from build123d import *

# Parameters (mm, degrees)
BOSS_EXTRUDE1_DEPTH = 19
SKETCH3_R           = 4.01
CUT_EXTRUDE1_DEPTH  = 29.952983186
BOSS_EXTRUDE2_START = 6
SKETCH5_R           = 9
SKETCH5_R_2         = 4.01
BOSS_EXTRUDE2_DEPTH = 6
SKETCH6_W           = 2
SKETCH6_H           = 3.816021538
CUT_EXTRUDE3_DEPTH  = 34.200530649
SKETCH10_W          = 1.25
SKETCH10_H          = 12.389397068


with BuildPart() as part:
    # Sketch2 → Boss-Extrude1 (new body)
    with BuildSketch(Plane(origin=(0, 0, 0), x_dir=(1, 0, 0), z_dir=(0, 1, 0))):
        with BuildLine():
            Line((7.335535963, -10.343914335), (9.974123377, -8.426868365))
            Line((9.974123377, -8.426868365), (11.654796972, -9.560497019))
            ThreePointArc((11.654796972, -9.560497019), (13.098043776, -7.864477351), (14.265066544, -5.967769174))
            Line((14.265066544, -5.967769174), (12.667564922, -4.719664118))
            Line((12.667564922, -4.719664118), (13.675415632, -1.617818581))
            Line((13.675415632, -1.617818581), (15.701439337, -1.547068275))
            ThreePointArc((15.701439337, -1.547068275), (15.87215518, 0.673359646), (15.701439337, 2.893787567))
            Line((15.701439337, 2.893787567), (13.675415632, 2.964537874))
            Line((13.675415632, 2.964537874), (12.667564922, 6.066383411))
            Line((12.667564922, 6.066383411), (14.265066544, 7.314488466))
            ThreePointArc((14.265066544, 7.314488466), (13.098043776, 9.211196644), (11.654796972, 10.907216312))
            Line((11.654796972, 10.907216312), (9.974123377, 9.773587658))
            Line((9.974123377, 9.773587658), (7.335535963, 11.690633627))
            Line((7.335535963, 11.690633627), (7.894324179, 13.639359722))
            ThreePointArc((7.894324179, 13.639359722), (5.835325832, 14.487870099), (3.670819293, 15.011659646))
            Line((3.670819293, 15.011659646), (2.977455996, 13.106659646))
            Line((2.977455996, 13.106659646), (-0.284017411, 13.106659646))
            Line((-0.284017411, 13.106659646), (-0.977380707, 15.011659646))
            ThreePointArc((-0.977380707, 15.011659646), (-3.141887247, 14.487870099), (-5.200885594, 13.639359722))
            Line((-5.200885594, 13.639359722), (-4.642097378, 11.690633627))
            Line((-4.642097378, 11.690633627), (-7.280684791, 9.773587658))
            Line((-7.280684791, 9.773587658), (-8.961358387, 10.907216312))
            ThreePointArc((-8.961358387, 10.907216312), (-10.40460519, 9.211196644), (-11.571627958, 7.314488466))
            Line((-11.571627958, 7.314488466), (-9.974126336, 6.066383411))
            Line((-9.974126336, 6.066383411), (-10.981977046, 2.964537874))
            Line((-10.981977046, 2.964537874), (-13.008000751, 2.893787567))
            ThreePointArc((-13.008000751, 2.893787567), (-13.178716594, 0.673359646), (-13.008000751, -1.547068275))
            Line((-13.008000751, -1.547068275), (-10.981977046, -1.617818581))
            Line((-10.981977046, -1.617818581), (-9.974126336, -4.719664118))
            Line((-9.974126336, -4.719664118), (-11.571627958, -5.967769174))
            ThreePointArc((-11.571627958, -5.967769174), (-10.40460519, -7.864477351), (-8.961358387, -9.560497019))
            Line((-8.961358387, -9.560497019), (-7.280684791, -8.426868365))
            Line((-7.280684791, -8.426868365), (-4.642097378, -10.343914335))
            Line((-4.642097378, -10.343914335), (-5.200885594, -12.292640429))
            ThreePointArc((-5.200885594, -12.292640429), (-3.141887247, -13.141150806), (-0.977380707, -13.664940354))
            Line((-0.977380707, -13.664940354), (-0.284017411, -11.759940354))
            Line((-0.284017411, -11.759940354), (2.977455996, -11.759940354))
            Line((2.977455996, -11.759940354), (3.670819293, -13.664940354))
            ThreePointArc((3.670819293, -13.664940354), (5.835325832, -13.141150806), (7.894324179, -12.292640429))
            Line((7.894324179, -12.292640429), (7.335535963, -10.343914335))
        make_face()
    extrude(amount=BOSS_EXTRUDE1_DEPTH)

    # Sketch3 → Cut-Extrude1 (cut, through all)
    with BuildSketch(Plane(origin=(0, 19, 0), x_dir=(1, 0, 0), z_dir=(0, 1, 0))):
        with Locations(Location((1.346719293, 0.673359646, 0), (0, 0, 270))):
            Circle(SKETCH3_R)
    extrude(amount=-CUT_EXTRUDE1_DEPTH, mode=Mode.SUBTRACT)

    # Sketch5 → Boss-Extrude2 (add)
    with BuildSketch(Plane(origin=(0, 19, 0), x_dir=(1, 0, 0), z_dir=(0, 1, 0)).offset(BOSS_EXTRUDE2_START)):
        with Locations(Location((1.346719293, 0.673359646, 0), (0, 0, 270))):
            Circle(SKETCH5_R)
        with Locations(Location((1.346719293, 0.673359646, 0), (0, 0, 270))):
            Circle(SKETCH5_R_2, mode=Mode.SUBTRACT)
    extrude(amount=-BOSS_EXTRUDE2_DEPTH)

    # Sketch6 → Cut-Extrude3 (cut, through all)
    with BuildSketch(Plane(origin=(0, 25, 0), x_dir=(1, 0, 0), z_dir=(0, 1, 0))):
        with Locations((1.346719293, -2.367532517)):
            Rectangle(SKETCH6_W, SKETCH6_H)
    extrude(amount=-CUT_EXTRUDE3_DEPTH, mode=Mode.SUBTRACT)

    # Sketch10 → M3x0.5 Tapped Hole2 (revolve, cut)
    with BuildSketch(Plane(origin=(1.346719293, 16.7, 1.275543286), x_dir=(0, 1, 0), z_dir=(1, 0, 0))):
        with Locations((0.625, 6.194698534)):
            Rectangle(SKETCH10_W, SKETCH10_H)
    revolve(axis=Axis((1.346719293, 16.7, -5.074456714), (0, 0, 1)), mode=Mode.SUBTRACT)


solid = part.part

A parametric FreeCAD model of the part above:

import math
import FreeCAD as App
import Part
import Sketcher
from FreeCAD import Vector
Q = App.Units.Quantity


def add_polygon(sketch, points):
    """Adds a closed chain of lines whose ends are joined by coincident constraints."""
    first, n = sketch.GeometryCount, len(points)
    for a, b in zip(points, points[1:] + points[:1]):
        sketch.addGeometry(Part.LineSegment(App.Vector(*a, 0), App.Vector(*b, 0)), False)
    for i in range(n):
        sketch.addConstraint(Sketcher.Constraint("Coincident", first + i, 2, first + (i + 1) % n, 1))

doc = App.newDocument("Part")
body = doc.addObject("PartDesign::Body", "Body")

# Sketch on XZ plane
sketch1 = body.newObject("Sketcher::SketchObject", "Sketch")
sketch1.AttachmentSupport = (doc.getObject("XZ_Plane"), [""])
sketch1.MapMode = "FlatFace"
sketch1.addGeometry(Part.LineSegment(Vector(7.335536, 10.343914, 0), Vector(9.974123, 8.426868, 0)), False)
sketch1.addGeometry(Part.LineSegment(Vector(9.974123, 8.426868, 0), Vector(11.654797, 9.560497, 0)), False)
sketch1.addGeometry(Part.ArcOfCircle(Part.Circle(Vector(1.346719, -0.67336, 0), Vector(0, 0, 1), 14.525436), math.radians(27.207017), math.radians(44.792983)), False)
sketch1.addGeometry(Part.LineSegment(Vector(14.265067, 5.967769, 0), Vector(12.667565, 4.719664, 0)), False)
sketch1.addGeometry(Part.LineSegment(Vector(12.667565, 4.719664, 0), Vector(13.675416, 1.617819, 0)), False)
sketch1.addGeometry(Part.LineSegment(Vector(13.675416, 1.617819, 0), Vector(15.701439, 1.547068, 0)), False)
sketch1.addGeometry(Part.ArcOfCircle(Part.Circle(Vector(1.346719, -0.67336, 0), Vector(0, 0, 1), 14.525436), math.radians(-8.792983), math.radians(8.792983)), False)
sketch1.addGeometry(Part.LineSegment(Vector(15.701439, -2.893788, 0), Vector(13.675416, -2.964538, 0)), False)
sketch1.addGeometry(Part.LineSegment(Vector(13.675416, -2.964538, 0), Vector(12.667565, -6.066383, 0)), False)
sketch1.addGeometry(Part.LineSegment(Vector(12.667565, -6.066383, 0), Vector(14.265067, -7.314488, 0)), False)
sketch1.addGeometry(Part.ArcOfCircle(Part.Circle(Vector(1.346719, -0.67336, 0), Vector(0, 0, 1), 14.525436), math.radians(-44.792983), math.radians(-27.207017)), False)
sketch1.addGeometry(Part.LineSegment(Vector(11.654797, -10.907216, 0), Vector(9.974123, -9.773588, 0)), False)
sketch1.addGeometry(Part.LineSegment(Vector(9.974123, -9.773588, 0), Vector(7.335536, -11.690634, 0)), False)
sketch1.addGeometry(Part.LineSegment(Vector(7.335536, -11.690634, 0), Vector(7.894324, -13.63936, 0)), False)
sketch1.addGeometry(Part.ArcOfCircle(Part.Circle(Vector(1.346719, -0.67336, 0), Vector(0, 0, 1), 14.525436), math.radians(-80.792983), math.radians(-63.207017)), False)
sketch1.addGeometry(Part.LineSegment(Vector(3.670819, -15.01166, 0), Vector(2.977456, -13.10666, 0)), False)
sketch1.addGeometry(Part.LineSegment(Vector(2.977456, -13.10666, 0), Vector(-0.284017, -13.10666, 0)), False)
sketch1.addGeometry(Part.LineSegment(Vector(-0.284017, -13.10666, 0), Vector(-0.977381, -15.01166, 0)), False)
sketch1.addGeometry(Part.ArcOfCircle(Part.Circle(Vector(1.346719, -0.67336, 0), Vector(0, 0, 1), 14.525436), math.radians(-116.792983), math.radians(-99.207017)), False)
sketch1.addGeometry(Part.LineSegment(Vector(-5.200886, -13.63936, 0), Vector(-4.642097, -11.690634, 0)), False)
sketch1.addGeometry(Part.LineSegment(Vector(-4.642097, -11.690634, 0), Vector(-7.280685, -9.773588, 0)), False)
sketch1.addGeometry(Part.LineSegment(Vector(-7.280685, -9.773588, 0), Vector(-8.961358, -10.907216, 0)), False)
sketch1.addGeometry(Part.ArcOfCircle(Part.Circle(Vector(1.346719, -0.67336, 0), Vector(0, 0, 1), 14.525436), math.radians(-152.792983), math.radians(-135.207017)), False)
sketch1.addGeometry(Part.LineSegment(Vector(-11.571628, -7.314488, 0), Vector(-9.974126, -6.066383, 0)), False)
sketch1.addGeometry(Part.LineSegment(Vector(-9.974126, -6.066383, 0), Vector(-10.981977, -2.964538, 0)), False)
sketch1.addGeometry(Part.LineSegment(Vector(-10.981977, -2.964538, 0), Vector(-13.008001, -2.893788, 0)), False)
sketch1.addGeometry(Part.ArcOfCircle(Part.Circle(Vector(1.346719, -0.67336, 0), Vector(0, 0, 1), 14.525436), math.radians(171.207017), math.radians(188.792983)), False)
sketch1.addGeometry(Part.LineSegment(Vector(-13.008001, 1.547068, 0), Vector(-10.981977, 1.617819, 0)), False)
sketch1.addGeometry(Part.LineSegment(Vector(-10.981977, 1.617819, 0), Vector(-9.974126, 4.719664, 0)), False)
sketch1.addGeometry(Part.LineSegment(Vector(-9.974126, 4.719664, 0), Vector(-11.571628, 5.967769, 0)), False)
sketch1.addGeometry(Part.ArcOfCircle(Part.Circle(Vector(1.346719, -0.67336, 0), Vector(0, 0, 1), 14.525436), math.radians(135.207017), math.radians(152.792983)), False)
sketch1.addGeometry(Part.LineSegment(Vector(-8.961358, 9.560497, 0), Vector(-7.280685, 8.426868, 0)), False)
sketch1.addGeometry(Part.LineSegment(Vector(-7.280685, 8.426868, 0), Vector(-4.642097, 10.343914, 0)), False)
sketch1.addGeometry(Part.LineSegment(Vector(-4.642097, 10.343914, 0), Vector(-5.200886, 12.29264, 0)), False)
sketch1.addGeometry(Part.ArcOfCircle(Part.Circle(Vector(1.346719, -0.67336, 0), Vector(0, 0, 1), 14.525436), math.radians(99.207017), math.radians(116.792983)), False)
sketch1.addGeometry(Part.LineSegment(Vector(-0.977381, 13.66494, 0), Vector(-0.284017, 11.75994, 0)), False)
sketch1.addGeometry(Part.LineSegment(Vector(-0.284017, 11.75994, 0), Vector(2.977456, 11.75994, 0)), False)
sketch1.addGeometry(Part.LineSegment(Vector(2.977456, 11.75994, 0), Vector(3.670819, 13.66494, 0)), False)
sketch1.addGeometry(Part.ArcOfCircle(Part.Circle(Vector(1.346719, -0.67336, 0), Vector(0, 0, 1), 14.525436), math.radians(63.207017), math.radians(80.792983)), False)
sketch1.addGeometry(Part.LineSegment(Vector(7.894324, 12.29264, 0), Vector(7.335536, 10.343914, 0)), False)
sketch1.addConstraint(Sketcher.Constraint("Coincident", 0, 2, 1, 1))
sketch1.addConstraint(Sketcher.Constraint("Coincident", 1, 2, 2, 2))
sketch1.addConstraint(Sketcher.Constraint("Coincident", 2, 1, 3, 1))
sketch1.addConstraint(Sketcher.Constraint("Coincident", 3, 2, 4, 1))
sketch1.addConstraint(Sketcher.Constraint("Coincident", 4, 2, 5, 1))
sketch1.addConstraint(Sketcher.Constraint("Coincident", 5, 2, 6, 2))
sketch1.addConstraint(Sketcher.Constraint("Coincident", 6, 1, 7, 1))
sketch1.addConstraint(Sketcher.Constraint("Coincident", 7, 2, 8, 1))
sketch1.addConstraint(Sketcher.Constraint("Coincident", 8, 2, 9, 1))
sketch1.addConstraint(Sketcher.Constraint("Coincident", 9, 2, 10, 2))
sketch1.addConstraint(Sketcher.Constraint("Coincident", 10, 1, 11, 1))
sketch1.addConstraint(Sketcher.Constraint("Coincident", 11, 2, 12, 1))
sketch1.addConstraint(Sketcher.Constraint("Coincident", 12, 2, 13, 1))
sketch1.addConstraint(Sketcher.Constraint("Coincident", 13, 2, 14, 2))
sketch1.addConstraint(Sketcher.Constraint("Coincident", 14, 1, 15, 1))
sketch1.addConstraint(Sketcher.Constraint("Coincident", 15, 2, 16, 1))
sketch1.addConstraint(Sketcher.Constraint("Coincident", 16, 2, 17, 1))
sketch1.addConstraint(Sketcher.Constraint("Coincident", 17, 2, 18, 2))
sketch1.addConstraint(Sketcher.Constraint("Coincident", 18, 1, 19, 1))
sketch1.addConstraint(Sketcher.Constraint("Coincident", 19, 2, 20, 1))
sketch1.addConstraint(Sketcher.Constraint("Coincident", 20, 2, 21, 1))
sketch1.addConstraint(Sketcher.Constraint("Coincident", 21, 2, 22, 2))
sketch1.addConstraint(Sketcher.Constraint("Coincident", 22, 1, 23, 1))
sketch1.addConstraint(Sketcher.Constraint("Coincident", 23, 2, 24, 1))
sketch1.addConstraint(Sketcher.Constraint("Coincident", 24, 2, 25, 1))
sketch1.addConstraint(Sketcher.Constraint("Coincident", 25, 2, 26, 2))
sketch1.addConstraint(Sketcher.Constraint("Coincident", 26, 1, 27, 1))
sketch1.addConstraint(Sketcher.Constraint("Coincident", 27, 2, 28, 1))
sketch1.addConstraint(Sketcher.Constraint("Coincident", 28, 2, 29, 1))
sketch1.addConstraint(Sketcher.Constraint("Coincident", 29, 2, 30, 2))
sketch1.addConstraint(Sketcher.Constraint("Coincident", 30, 1, 31, 1))
sketch1.addConstraint(Sketcher.Constraint("Coincident", 31, 2, 32, 1))
sketch1.addConstraint(Sketcher.Constraint("Coincident", 32, 2, 33, 1))
sketch1.addConstraint(Sketcher.Constraint("Coincident", 33, 2, 34, 2))
sketch1.addConstraint(Sketcher.Constraint("Coincident", 34, 1, 35, 1))
sketch1.addConstraint(Sketcher.Constraint("Coincident", 35, 2, 36, 1))
sketch1.addConstraint(Sketcher.Constraint("Coincident", 36, 2, 37, 1))
sketch1.addConstraint(Sketcher.Constraint("Coincident", 37, 2, 38, 2))
sketch1.addConstraint(Sketcher.Constraint("Coincident", 38, 1, 39, 1))
sketch1.addConstraint(Sketcher.Constraint("Coincident", 39, 2, 0, 1))
sketch1.addConstraint(Sketcher.Constraint("Horizontal", 16))
sketch1.addConstraint(Sketcher.Constraint("Horizontal", 36))
sketch1.addConstraint(Sketcher.Constraint("Coincident", 6, 3, 2, 3))
sketch1.addConstraint(Sketcher.Constraint("Coincident", 10, 3, 2, 3))
sketch1.addConstraint(Sketcher.Constraint("Coincident", 14, 3, 2, 3))
sketch1.addConstraint(Sketcher.Constraint("Coincident", 18, 3, 2, 3))
sketch1.addConstraint(Sketcher.Constraint("Coincident", 22, 3, 2, 3))
sketch1.addConstraint(Sketcher.Constraint("Coincident", 26, 3, 2, 3))
sketch1.addConstraint(Sketcher.Constraint("Coincident", 30, 3, 2, 3))
sketch1.addConstraint(Sketcher.Constraint("Coincident", 34, 3, 2, 3))
sketch1.addConstraint(Sketcher.Constraint("Coincident", 38, 3, 2, 3))
sketch1.addConstraint(Sketcher.Constraint("Equal", 2, 6))
sketch1.addConstraint(Sketcher.Constraint("Equal", 6, 10))
sketch1.addConstraint(Sketcher.Constraint("Equal", 10, 14))
sketch1.addConstraint(Sketcher.Constraint("Equal", 14, 18))
sketch1.addConstraint(Sketcher.Constraint("Equal", 18, 22))
sketch1.addConstraint(Sketcher.Constraint("Equal", 22, 26))
sketch1.addConstraint(Sketcher.Constraint("Equal", 26, 30))
sketch1.addConstraint(Sketcher.Constraint("Equal", 30, 34))
sketch1.addConstraint(Sketcher.Constraint("Equal", 34, 38))
sketch1.addConstraint(Sketcher.Constraint("Parallel", 0, 20))
sketch1.addConstraint(Sketcher.Constraint("Parallel", 1, 21))
sketch1.addConstraint(Sketcher.Constraint("Parallel", 3, 23))
sketch1.addConstraint(Sketcher.Constraint("Parallel", 4, 24))
sketch1.addConstraint(Sketcher.Constraint("Parallel", 5, 25))
sketch1.addConstraint(Sketcher.Constraint("Parallel", 7, 27))
sketch1.addConstraint(Sketcher.Constraint("Parallel", 8, 28))
sketch1.addConstraint(Sketcher.Constraint("Parallel", 9, 29))
sketch1.addConstraint(Sketcher.Constraint("Parallel", 11, 31))
sketch1.addConstraint(Sketcher.Constraint("Parallel", 12, 32))
sketch1.addConstraint(Sketcher.Constraint("Parallel", 13, 33))
sketch1.addConstraint(Sketcher.Constraint("Parallel", 15, 35))
sketch1.addConstraint(Sketcher.Constraint("Parallel", 17, 37))
sketch1.addConstraint(Sketcher.Constraint("Parallel", 19, 39))
sketch1.addConstraint(Sketcher.Constraint("Horizontal", 14, 1, 17, 2))
sketch1.addConstraint(Sketcher.Constraint("Horizontal", 13, 2, 18, 1))
sketch1.addConstraint(Sketcher.Constraint("Horizontal", 12, 2, 19, 2))
sketch1.addConstraint(Sketcher.Constraint("Horizontal", 11, 2, 20, 2))
sketch1.addConstraint(Sketcher.Constraint("Horizontal", 10, 1, 21, 2))
sketch1.addConstraint(Sketcher.Constraint("Horizontal", 9, 2, 22, 1))
sketch1.addConstraint(Sketcher.Constraint("Horizontal", 8, 2, 23, 2))
sketch1.addConstraint(Sketcher.Constraint("Horizontal", 7, 2, 24, 2))
sketch1.addConstraint(Sketcher.Constraint("Horizontal", 6, 1, 25, 2))
sketch1.addConstraint(Sketcher.Constraint("Horizontal", 5, 2, 26, 1))
sketch1.addConstraint(Sketcher.Constraint("Horizontal", 4, 2, 27, 2))
sketch1.addConstraint(Sketcher.Constraint("Horizontal", 3, 2, 28, 2))
sketch1.addConstraint(Sketcher.Constraint("Horizontal", 1, 2, 30, 1))
sketch1.addConstraint(Sketcher.Constraint("Horizontal", 0, 2, 31, 2))
sketch1.addConstraint(Sketcher.Constraint("Horizontal", 34, 1, 37, 2))
sketch1.addConstraint(Sketcher.Constraint("Horizontal", 33, 2, 38, 1))
sketch1.addConstraint(Sketcher.Constraint("Vertical", 5, 2, 6, 1))
sketch1.addConstraint(Sketcher.Constraint("Vertical", 4, 2, 7, 2))
sketch1.addConstraint(Sketcher.Constraint("Vertical", 3, 2, 8, 2))
sketch1.addConstraint(Sketcher.Constraint("Vertical", 2, 1, 9, 2))
sketch1.addConstraint(Sketcher.Constraint("Vertical", 1, 2, 10, 1))
sketch1.addConstraint(Sketcher.Constraint("Vertical", 0, 2, 11, 2))
sketch1.addConstraint(Sketcher.Constraint("Vertical", 24, 2, 27, 2))
sketch1.addConstraint(Sketcher.Constraint("Vertical", 20, 2, 31, 2))
sketch1.addConstraint(Sketcher.Constraint("Vertical", 19, 2, 32, 2))
sketch1.addConstraint(Sketcher.Constraint("Vertical", 18, 1, 33, 2))
sketch1.addConstraint(Sketcher.Constraint("Vertical", 17, 2, 34, 1))
sketch1.addConstraint(Sketcher.Constraint("Vertical", 16, 2, 35, 2))
sketch1.addConstraint(Sketcher.Constraint("Vertical", 15, 2, 36, 2))
sketch1.addConstraint(Sketcher.Constraint("Equal", 1, 3))
sketch1.addConstraint(Sketcher.Constraint("Equal", 0, 4))
sketch1.addConstraint(Sketcher.Constraint("Equal", 3, 5))
sketch1.addConstraint(Sketcher.Constraint("Equal", 11, 13))
sketch1.addConstraint(Sketcher.Constraint("Equal", 13, 15))
sketch1.addConstraint(Sketcher.Constraint("Angle", 0, Q("-36 deg")))
sketch1.addConstraint(Sketcher.Constraint("Angle", 1, Q("34 deg")))
sketch1.addConstraint(Sketcher.Constraint("Angle", 3, Q("-142 deg")))
sketch1.addConstraint(Sketcher.Constraint("Angle", 4, Q("-72 deg")))
sketch1.addConstraint(Sketcher.Constraint("Angle", 5, Q("-2 deg")))
sketch1.addConstraint(Sketcher.Constraint("Angle", 13, Q("-74 deg")))
sketch1.addConstraint(Sketcher.Constraint("Angle", 15, Q("110 deg")))
sketch1.addConstraint(Sketcher.Constraint("DistanceX", 25, 2, -1, 1, Q("13.008001 mm")))
sketch1.addConstraint(Sketcher.Constraint("Radius", 2, Q("14.525436 mm")))
sketch1.addConstraint(Sketcher.Constraint("DistanceY", 14, 1, 15, 2, Q("1.905 mm")))
sketch1.addConstraint(Sketcher.Constraint("DistanceY", 2, 1, 0, 2, Q("2.459099 mm")))
sketch1.addConstraint(Sketcher.Constraint("DistanceY", 14, 1, 13, 2, Q("1.3723 mm")))
sketch1.addConstraint(Sketcher.Constraint("DistanceY", 2, 3, -1, 1, Q("0.67336 mm")))
pad1 = body.newObject("PartDesign::Pad", "Pad")
pad1.Profile = sketch1
pad1.Length = 19
pad1.Reversed = True

# Sketch on XZ plane
sketch2 = body.newObject("Sketcher::SketchObject", "Sketch001")
sketch2.AttachmentSupport = (doc.getObject("XZ_Plane"), [""])
sketch2.MapMode = "FlatFace"
sketch2.AttachmentOffset = App.Placement(Vector(0, 0, -19), App.Rotation())
sketch2.addGeometry(Part.Circle(Vector(1.346719, -0.67336, 0), Vector(0, 0, 1), 4.01), False)
sketch2.addConstraint(Sketcher.Constraint("Diameter", 0, Q("8.02 mm")))
sketch2.addConstraint(Sketcher.Constraint("DistanceX", -1, 1, 0, 3, Q("1.346719 mm")))
sketch2.addConstraint(Sketcher.Constraint("DistanceY", 0, 3, -1, 1, Q("0.67336 mm")))
pocket1 = body.newObject("PartDesign::Pocket", "Pocket")
pocket1.Profile = sketch2
pocket1.Type = "ThroughAll"
pocket1.Reversed = True

# Sketch on XZ plane
sketch3 = body.newObject("Sketcher::SketchObject", "Sketch002")
sketch3.AttachmentSupport = (doc.getObject("XZ_Plane"), [""])
sketch3.MapMode = "FlatFace"
sketch3.AttachmentOffset = App.Placement(Vector(0, 0, -25), App.Rotation())
sketch3.addGeometry(Part.Circle(Vector(1.346719, -0.67336, 0), Vector(0, 0, 1), 9), False)
sketch3.addGeometry(Part.Circle(Vector(1.346719, -0.67336, 0), Vector(0, 0, 1), 4.01), False)
sketch3.addConstraint(Sketcher.Constraint("Coincident", 1, 3, 0, 3))
sketch3.addConstraint(Sketcher.Constraint("Diameter", 0, Q("18 mm")))
sketch3.addConstraint(Sketcher.Constraint("Diameter", 1, Q("8.02 mm")))
sketch3.addConstraint(Sketcher.Constraint("DistanceX", -1, 1, 0, 3, Q("1.346719 mm")))
sketch3.addConstraint(Sketcher.Constraint("DistanceY", 0, 3, -1, 1, Q("0.67336 mm")))
pad2 = body.newObject("PartDesign::Pad", "Pad001")
pad2.Profile = sketch3
pad2.Length = 6

# Sketch on XZ plane
sketch4 = body.newObject("Sketcher::SketchObject", "Sketch003")
sketch4.AttachmentSupport = (doc.getObject("XZ_Plane"), [""])
sketch4.MapMode = "FlatFace"
sketch4.AttachmentOffset = App.Placement(Vector(0, 0, -25), App.Rotation())
add_polygon(sketch4, [(0.346719, 0.459522), (0.346719, 4.275543), (2.346719, 4.275543), (2.346719, 0.459522)])  # lines 0-3
sketch4.addConstraint(Sketcher.Constraint("Vertical", 0))
sketch4.addConstraint(Sketcher.Constraint("Horizontal", 1))
sketch4.addConstraint(Sketcher.Constraint("Vertical", 2))
sketch4.addConstraint(Sketcher.Constraint("Horizontal", 3))
sketch4.addConstraint(Sketcher.Constraint("DistanceX", 1, 1, 1, 2, Q("2 mm")))
sketch4.addConstraint(Sketcher.Constraint("DistanceY", 0, 1, 0, 2, Q("3.816022 mm")))
sketch4.addConstraint(Sketcher.Constraint("DistanceX", -1, 1, 0, 2, Q("0.346719 mm")))
sketch4.addConstraint(Sketcher.Constraint("DistanceY", -1, 1, 2, 2, Q("0.459522 mm")))
pocket2 = body.newObject("PartDesign::Pocket", "Pocket001")
pocket2.Profile = sketch4
pocket2.Type = "ThroughAll"
pocket2.Reversed = True

# Sketch on YZ plane
sketch5 = body.newObject("Sketcher::SketchObject", "Sketch004")
sketch5.AttachmentSupport = (doc.getObject("YZ_Plane"), [""])
sketch5.MapMode = "FlatFace"
sketch5.AttachmentOffset = App.Placement(Vector(0, 0, 1.346719), App.Rotation())
add_polygon(sketch5, [(16.7, 13.66494), (16.7, 1.275543), (17.95, 1.275543), (17.95, 13.66494)])  # lines 0-3
sketch5.addGeometry(Part.LineSegment(Vector(16.7, 1.275543, 0), Vector(16.7, 13.66494, 0)), True)  # axis
sketch5.addConstraint(Sketcher.Constraint("Vertical", 0))
sketch5.addConstraint(Sketcher.Constraint("Horizontal", 1))
sketch5.addConstraint(Sketcher.Constraint("Vertical", 2))
sketch5.addConstraint(Sketcher.Constraint("Horizontal", 3))
sketch5.addConstraint(Sketcher.Constraint("Vertical", 4))
sketch5.addConstraint(Sketcher.Constraint("Coincident", 4, 1, 0, 2))
sketch5.addConstraint(Sketcher.Constraint("Horizontal", 2, 2, 4, 2))
sketch5.addConstraint(Sketcher.Constraint("DistanceX", 1, 1, 1, 2, Q("1.25 mm")))
sketch5.addConstraint(Sketcher.Constraint("DistanceX", -1, 1, 0, 2, Q("16.7 mm")))
sketch5.addConstraint(Sketcher.Constraint("DistanceY", 0, 2, 0, 1, Q("12.389397 mm")))
sketch5.addConstraint(Sketcher.Constraint("DistanceY", -1, 1, 2, 2, Q("13.66494 mm")))
groove = body.newObject("PartDesign::Groove", "Groove")
groove.Profile = sketch5
groove.ReferenceAxis = (sketch5, ["Axis0"])
groove.Angle = 360

doc.recompute()
